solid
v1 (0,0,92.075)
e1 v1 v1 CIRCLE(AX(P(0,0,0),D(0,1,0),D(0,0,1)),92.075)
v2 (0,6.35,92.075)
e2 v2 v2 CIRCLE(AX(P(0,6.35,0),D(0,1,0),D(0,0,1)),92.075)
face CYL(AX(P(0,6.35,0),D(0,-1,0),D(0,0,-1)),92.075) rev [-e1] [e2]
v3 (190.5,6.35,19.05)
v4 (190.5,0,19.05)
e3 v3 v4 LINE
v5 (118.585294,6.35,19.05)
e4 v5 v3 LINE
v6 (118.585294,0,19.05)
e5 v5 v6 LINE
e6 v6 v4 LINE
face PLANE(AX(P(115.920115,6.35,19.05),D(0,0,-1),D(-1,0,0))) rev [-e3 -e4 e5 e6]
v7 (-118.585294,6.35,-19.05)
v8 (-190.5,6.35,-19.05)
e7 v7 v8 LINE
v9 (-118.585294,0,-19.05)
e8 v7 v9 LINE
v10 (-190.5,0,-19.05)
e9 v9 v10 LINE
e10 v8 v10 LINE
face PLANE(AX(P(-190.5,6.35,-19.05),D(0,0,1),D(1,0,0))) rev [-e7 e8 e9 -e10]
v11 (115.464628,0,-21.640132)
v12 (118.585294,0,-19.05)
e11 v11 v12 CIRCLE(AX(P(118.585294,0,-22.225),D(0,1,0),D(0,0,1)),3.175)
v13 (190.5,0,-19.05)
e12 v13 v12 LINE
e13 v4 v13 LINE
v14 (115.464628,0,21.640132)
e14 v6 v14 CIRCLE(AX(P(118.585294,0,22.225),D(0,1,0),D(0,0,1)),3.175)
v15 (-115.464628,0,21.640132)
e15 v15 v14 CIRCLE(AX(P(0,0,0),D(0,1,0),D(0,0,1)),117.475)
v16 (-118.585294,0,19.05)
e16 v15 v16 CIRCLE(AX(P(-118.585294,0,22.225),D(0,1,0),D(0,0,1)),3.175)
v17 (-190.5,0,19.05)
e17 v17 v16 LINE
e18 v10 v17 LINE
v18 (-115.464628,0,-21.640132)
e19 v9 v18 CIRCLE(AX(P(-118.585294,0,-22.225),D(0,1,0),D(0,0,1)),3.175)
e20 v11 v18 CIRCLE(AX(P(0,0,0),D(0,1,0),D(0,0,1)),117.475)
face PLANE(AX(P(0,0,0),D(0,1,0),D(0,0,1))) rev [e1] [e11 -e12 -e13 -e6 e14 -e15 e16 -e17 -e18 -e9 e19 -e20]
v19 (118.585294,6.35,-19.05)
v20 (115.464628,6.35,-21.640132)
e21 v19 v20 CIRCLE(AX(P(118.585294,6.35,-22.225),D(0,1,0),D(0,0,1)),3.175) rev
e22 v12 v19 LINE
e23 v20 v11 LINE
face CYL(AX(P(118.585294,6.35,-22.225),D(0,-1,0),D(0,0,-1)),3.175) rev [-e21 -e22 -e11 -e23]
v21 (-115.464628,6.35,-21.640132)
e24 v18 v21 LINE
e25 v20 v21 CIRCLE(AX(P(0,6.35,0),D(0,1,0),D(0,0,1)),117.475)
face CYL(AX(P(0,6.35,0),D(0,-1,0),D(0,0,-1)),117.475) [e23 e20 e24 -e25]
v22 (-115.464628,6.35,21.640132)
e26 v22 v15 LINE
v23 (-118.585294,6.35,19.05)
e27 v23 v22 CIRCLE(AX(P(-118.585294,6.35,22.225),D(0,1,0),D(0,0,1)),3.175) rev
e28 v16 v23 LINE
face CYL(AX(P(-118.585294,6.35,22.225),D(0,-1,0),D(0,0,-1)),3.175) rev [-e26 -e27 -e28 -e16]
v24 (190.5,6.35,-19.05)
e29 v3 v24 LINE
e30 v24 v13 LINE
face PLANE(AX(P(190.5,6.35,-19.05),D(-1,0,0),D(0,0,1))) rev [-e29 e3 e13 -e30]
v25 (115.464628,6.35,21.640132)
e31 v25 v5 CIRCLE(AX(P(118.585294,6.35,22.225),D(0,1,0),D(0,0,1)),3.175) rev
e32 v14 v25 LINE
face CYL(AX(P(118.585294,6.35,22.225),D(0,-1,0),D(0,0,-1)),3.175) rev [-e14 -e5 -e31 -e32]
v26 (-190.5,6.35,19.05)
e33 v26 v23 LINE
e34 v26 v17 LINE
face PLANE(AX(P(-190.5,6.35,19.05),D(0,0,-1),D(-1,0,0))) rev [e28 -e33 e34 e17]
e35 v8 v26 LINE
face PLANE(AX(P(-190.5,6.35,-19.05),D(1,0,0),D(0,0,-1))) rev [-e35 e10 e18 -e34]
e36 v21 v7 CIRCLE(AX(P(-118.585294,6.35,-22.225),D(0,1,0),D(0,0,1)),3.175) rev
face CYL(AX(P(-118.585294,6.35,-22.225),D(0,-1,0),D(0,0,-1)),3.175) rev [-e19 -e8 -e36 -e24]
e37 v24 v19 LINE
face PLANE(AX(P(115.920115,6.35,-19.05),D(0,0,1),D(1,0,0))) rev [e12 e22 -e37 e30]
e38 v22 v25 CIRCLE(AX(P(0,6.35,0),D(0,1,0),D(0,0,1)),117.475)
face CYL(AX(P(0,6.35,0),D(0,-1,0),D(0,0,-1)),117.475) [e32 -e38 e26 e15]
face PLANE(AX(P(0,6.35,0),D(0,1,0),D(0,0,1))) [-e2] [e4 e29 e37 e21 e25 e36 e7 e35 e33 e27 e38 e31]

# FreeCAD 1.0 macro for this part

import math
import FreeCAD as App
import Part
import Sketcher

V = App.Vector
Q = App.Units.Quantity


def edges_at(feature, points):
    """Names of the edges that pass closest to the given points."""
    edges = feature.Shape.Edges
    near = lambda p: min(range(len(edges)), key=lambda i: edges[i].distToShape(Part.Vertex(*p))[0])
    return sorted({f"Edge{near(p) + 1}" for p in points})

doc = App.newDocument("Part")
body = doc.addObject("PartDesign::Body", "Body")

# Sketch on XZ plane
sketch1 = body.newObject("Sketcher::SketchObject", "Sketch")
sketch1.AttachmentSupport = (doc.getObject("XZ_Plane"), [""])
sketch1.MapMode = "FlatFace"
sketch1.addGeometry(Part.LineSegment(V(190, -19, 0), V(116, -19, 0)), False)
sketch1.addGeometry(Part.ArcOfCircle(Part.Circle(V(0, 0, 0), V(0, 0, 1), 117), math.radians(-171), math.radians(-9)), False)
sketch1.addGeometry(Part.LineSegment(V(-116, -19, 0), V(-190, -19, 0)), False)
sketch1.addGeometry(Part.LineSegment(V(-190, -19, 0), V(-190, 19, 0)), False)
sketch1.addGeometry(Part.LineSegment(V(-190, 19, 0), V(-116, 19, 0)), False)
sketch1.addGeometry(Part.ArcOfCircle(Part.Circle(V(0, 0, 0), V(0, 0, 1), 117), math.radians(9), math.radians(171)), False)
sketch1.addGeometry(Part.LineSegment(V(116, 19, 0), V(190, 19, 0)), False)
sketch1.addGeometry(Part.LineSegment(V(190, 19, 0), V(190, -19, 0)), False)
sketch1.addGeometry(Part.Circle(V(0, 0, 0), V(0, 0, 1), 92), False)
sketch1.addConstraint(Sketcher.Constraint("Coincident", 0, 2, 1, 2))
sketch1.addConstraint(Sketcher.Constraint("Coincident", 1, 1, 2, 1))
sketch1.addConstraint(Sketcher.Constraint("Coincident", 2, 2, 3, 1))
sketch1.addConstraint(Sketcher.Constraint("Coincident", 3, 2, 4, 1))
sketch1.addConstraint(Sketcher.Constraint("Coincident", 4, 2, 5, 2))
sketch1.addConstraint(Sketcher.Constraint("Coincident", 5, 1, 6, 1))
sketch1.addConstraint(Sketcher.Constraint("Coincident", 6, 2, 7, 1))
sketch1.addConstraint(Sketcher.Constraint("Coincident", 7, 2, 0, 1))
sketch1.addConstraint(Sketcher.Constraint("Horizontal", 0))
sketch1.addConstraint(Sketcher.Constraint("Horizontal", 2))
sketch1.addConstraint(Sketcher.Constraint("Vertical", 3))
sketch1.addConstraint(Sketcher.Constraint("Horizontal", 4))
sketch1.addConstraint(Sketcher.Constraint("Horizontal", 6))
sketch1.addConstraint(Sketcher.Constraint("Vertical", 7))
sketch1.addConstraint(Sketcher.Constraint("Coincident", 1, 3, -1, 1))
sketch1.addConstraint(Sketcher.Constraint("Coincident", 5, 3, -1, 1))
sketch1.addConstraint(Sketcher.Constraint("Coincident", 8, 3, -1, 1))
sketch1.addConstraint(Sketcher.Constraint("Equal", 1, 5))
sketch1.addConstraint(Sketcher.Constraint("Symmetric", 2, 2, 6, 2, -1, 1))
sketch1.addConstraint(Sketcher.Constraint("Horizontal", 0, 2, 1, 1))
sketch1.addConstraint(Sketcher.Constraint("Horizontal", 4, 2, 5, 1))
sketch1.addConstraint(Sketcher.Constraint("Diameter", 8, Q("7.25 in")))
sketch1.addConstraint(Sketcher.Constraint("DistanceY", 3, 1, 3, 2, Q("1.5 in")))
sketch1.addConstraint(Sketcher.Constraint("Radius", 1, Q("4.625 in")))
sketch1.addConstraint(Sketcher.Constraint("DistanceX", 2, 2, -1, 1, Q("7.5 in")))
pad1 = body.newObject("PartDesign::Pad", "Pad")
pad1.Profile = sketch1
pad1.Length = Q("0.25 in")
pad1.Reversed = True
doc.recompute()

fillet = body.newObject("PartDesign::Fillet", "Fillet")
fillet.Base = (pad1, edges_at(pad1, [
    (115.92, 3.175, 19.05),
    (-115.92, 3.175, 19.05),
    (-115.92, 3.175, -19.05),
    (115.92, 3.175, -19.05),
]))
fillet.Radius = Q("0.125 in")

doc.recompute()
